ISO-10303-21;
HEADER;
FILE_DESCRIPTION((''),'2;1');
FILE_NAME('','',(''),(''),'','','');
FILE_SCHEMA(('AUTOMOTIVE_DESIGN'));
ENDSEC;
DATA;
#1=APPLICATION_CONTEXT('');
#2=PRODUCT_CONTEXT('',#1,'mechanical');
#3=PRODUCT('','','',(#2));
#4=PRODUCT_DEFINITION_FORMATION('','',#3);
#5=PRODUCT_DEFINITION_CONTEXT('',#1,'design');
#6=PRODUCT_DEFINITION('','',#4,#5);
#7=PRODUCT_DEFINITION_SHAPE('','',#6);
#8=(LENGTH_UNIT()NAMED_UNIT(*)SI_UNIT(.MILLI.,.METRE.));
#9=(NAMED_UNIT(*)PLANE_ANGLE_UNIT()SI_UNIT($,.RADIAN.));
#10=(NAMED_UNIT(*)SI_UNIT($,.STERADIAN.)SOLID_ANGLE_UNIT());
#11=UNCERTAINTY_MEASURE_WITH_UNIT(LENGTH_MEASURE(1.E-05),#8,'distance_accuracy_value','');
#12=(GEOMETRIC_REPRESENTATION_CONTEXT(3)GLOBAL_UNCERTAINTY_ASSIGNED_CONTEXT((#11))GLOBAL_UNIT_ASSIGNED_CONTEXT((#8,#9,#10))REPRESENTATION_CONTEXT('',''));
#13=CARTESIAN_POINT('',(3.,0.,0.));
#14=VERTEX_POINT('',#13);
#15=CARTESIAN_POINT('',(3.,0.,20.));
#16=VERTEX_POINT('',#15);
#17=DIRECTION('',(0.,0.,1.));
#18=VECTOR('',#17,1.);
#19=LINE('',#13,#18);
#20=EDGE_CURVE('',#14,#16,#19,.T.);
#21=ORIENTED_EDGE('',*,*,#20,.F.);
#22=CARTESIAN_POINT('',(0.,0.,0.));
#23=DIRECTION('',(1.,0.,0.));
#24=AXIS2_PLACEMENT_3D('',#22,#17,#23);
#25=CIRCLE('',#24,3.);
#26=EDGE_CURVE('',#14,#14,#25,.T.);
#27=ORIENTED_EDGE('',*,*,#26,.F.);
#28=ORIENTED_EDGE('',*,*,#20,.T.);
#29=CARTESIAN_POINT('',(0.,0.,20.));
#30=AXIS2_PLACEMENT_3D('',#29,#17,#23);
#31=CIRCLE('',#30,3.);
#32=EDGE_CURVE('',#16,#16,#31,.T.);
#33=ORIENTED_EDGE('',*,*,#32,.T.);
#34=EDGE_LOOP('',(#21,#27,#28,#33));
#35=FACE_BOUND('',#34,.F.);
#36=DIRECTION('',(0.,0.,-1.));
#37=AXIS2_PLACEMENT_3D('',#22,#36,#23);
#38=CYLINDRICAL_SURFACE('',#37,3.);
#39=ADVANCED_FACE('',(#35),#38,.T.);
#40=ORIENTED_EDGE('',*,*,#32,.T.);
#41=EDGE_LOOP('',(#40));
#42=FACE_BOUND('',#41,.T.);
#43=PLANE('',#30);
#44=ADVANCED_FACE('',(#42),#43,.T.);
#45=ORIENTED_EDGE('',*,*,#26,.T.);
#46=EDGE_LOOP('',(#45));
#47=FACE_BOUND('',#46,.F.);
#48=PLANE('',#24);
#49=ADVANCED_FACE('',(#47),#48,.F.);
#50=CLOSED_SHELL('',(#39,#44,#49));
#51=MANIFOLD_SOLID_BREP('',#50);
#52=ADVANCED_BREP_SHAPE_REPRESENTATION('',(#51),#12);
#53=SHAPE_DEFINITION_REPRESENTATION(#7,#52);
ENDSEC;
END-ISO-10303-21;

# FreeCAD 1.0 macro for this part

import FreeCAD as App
import Part
import Sketcher

V = App.Vector
Q = App.Units.Quantity

doc = App.newDocument("Part")
body = doc.addObject("PartDesign::Body", "Body")

# Sketch on XY plane
sketch1 = doc.addObject("Sketcher::SketchObject", "Sketch")
body.addObject(sketch1)
sketch1.AttachmentSupport = (doc.XY_Plane, [""])
sketch1.MapMode = "FlatFace"
sketch1.addGeometry(Part.Circle(V(0, 0, 0), V(0, 0, 1), 3), False)
sketch1.addConstraint([
    Sketcher.Constraint("Coincident", 0, 3, -1, 1),
    Sketcher.Constraint("Diameter", 0, Q("6 mm")),
])
pad1 = doc.addObject("PartDesign::Pad", "Pad")
body.addObject(pad1)
pad1.Profile = sketch1
pad1.Length = 20

doc.recompute()
